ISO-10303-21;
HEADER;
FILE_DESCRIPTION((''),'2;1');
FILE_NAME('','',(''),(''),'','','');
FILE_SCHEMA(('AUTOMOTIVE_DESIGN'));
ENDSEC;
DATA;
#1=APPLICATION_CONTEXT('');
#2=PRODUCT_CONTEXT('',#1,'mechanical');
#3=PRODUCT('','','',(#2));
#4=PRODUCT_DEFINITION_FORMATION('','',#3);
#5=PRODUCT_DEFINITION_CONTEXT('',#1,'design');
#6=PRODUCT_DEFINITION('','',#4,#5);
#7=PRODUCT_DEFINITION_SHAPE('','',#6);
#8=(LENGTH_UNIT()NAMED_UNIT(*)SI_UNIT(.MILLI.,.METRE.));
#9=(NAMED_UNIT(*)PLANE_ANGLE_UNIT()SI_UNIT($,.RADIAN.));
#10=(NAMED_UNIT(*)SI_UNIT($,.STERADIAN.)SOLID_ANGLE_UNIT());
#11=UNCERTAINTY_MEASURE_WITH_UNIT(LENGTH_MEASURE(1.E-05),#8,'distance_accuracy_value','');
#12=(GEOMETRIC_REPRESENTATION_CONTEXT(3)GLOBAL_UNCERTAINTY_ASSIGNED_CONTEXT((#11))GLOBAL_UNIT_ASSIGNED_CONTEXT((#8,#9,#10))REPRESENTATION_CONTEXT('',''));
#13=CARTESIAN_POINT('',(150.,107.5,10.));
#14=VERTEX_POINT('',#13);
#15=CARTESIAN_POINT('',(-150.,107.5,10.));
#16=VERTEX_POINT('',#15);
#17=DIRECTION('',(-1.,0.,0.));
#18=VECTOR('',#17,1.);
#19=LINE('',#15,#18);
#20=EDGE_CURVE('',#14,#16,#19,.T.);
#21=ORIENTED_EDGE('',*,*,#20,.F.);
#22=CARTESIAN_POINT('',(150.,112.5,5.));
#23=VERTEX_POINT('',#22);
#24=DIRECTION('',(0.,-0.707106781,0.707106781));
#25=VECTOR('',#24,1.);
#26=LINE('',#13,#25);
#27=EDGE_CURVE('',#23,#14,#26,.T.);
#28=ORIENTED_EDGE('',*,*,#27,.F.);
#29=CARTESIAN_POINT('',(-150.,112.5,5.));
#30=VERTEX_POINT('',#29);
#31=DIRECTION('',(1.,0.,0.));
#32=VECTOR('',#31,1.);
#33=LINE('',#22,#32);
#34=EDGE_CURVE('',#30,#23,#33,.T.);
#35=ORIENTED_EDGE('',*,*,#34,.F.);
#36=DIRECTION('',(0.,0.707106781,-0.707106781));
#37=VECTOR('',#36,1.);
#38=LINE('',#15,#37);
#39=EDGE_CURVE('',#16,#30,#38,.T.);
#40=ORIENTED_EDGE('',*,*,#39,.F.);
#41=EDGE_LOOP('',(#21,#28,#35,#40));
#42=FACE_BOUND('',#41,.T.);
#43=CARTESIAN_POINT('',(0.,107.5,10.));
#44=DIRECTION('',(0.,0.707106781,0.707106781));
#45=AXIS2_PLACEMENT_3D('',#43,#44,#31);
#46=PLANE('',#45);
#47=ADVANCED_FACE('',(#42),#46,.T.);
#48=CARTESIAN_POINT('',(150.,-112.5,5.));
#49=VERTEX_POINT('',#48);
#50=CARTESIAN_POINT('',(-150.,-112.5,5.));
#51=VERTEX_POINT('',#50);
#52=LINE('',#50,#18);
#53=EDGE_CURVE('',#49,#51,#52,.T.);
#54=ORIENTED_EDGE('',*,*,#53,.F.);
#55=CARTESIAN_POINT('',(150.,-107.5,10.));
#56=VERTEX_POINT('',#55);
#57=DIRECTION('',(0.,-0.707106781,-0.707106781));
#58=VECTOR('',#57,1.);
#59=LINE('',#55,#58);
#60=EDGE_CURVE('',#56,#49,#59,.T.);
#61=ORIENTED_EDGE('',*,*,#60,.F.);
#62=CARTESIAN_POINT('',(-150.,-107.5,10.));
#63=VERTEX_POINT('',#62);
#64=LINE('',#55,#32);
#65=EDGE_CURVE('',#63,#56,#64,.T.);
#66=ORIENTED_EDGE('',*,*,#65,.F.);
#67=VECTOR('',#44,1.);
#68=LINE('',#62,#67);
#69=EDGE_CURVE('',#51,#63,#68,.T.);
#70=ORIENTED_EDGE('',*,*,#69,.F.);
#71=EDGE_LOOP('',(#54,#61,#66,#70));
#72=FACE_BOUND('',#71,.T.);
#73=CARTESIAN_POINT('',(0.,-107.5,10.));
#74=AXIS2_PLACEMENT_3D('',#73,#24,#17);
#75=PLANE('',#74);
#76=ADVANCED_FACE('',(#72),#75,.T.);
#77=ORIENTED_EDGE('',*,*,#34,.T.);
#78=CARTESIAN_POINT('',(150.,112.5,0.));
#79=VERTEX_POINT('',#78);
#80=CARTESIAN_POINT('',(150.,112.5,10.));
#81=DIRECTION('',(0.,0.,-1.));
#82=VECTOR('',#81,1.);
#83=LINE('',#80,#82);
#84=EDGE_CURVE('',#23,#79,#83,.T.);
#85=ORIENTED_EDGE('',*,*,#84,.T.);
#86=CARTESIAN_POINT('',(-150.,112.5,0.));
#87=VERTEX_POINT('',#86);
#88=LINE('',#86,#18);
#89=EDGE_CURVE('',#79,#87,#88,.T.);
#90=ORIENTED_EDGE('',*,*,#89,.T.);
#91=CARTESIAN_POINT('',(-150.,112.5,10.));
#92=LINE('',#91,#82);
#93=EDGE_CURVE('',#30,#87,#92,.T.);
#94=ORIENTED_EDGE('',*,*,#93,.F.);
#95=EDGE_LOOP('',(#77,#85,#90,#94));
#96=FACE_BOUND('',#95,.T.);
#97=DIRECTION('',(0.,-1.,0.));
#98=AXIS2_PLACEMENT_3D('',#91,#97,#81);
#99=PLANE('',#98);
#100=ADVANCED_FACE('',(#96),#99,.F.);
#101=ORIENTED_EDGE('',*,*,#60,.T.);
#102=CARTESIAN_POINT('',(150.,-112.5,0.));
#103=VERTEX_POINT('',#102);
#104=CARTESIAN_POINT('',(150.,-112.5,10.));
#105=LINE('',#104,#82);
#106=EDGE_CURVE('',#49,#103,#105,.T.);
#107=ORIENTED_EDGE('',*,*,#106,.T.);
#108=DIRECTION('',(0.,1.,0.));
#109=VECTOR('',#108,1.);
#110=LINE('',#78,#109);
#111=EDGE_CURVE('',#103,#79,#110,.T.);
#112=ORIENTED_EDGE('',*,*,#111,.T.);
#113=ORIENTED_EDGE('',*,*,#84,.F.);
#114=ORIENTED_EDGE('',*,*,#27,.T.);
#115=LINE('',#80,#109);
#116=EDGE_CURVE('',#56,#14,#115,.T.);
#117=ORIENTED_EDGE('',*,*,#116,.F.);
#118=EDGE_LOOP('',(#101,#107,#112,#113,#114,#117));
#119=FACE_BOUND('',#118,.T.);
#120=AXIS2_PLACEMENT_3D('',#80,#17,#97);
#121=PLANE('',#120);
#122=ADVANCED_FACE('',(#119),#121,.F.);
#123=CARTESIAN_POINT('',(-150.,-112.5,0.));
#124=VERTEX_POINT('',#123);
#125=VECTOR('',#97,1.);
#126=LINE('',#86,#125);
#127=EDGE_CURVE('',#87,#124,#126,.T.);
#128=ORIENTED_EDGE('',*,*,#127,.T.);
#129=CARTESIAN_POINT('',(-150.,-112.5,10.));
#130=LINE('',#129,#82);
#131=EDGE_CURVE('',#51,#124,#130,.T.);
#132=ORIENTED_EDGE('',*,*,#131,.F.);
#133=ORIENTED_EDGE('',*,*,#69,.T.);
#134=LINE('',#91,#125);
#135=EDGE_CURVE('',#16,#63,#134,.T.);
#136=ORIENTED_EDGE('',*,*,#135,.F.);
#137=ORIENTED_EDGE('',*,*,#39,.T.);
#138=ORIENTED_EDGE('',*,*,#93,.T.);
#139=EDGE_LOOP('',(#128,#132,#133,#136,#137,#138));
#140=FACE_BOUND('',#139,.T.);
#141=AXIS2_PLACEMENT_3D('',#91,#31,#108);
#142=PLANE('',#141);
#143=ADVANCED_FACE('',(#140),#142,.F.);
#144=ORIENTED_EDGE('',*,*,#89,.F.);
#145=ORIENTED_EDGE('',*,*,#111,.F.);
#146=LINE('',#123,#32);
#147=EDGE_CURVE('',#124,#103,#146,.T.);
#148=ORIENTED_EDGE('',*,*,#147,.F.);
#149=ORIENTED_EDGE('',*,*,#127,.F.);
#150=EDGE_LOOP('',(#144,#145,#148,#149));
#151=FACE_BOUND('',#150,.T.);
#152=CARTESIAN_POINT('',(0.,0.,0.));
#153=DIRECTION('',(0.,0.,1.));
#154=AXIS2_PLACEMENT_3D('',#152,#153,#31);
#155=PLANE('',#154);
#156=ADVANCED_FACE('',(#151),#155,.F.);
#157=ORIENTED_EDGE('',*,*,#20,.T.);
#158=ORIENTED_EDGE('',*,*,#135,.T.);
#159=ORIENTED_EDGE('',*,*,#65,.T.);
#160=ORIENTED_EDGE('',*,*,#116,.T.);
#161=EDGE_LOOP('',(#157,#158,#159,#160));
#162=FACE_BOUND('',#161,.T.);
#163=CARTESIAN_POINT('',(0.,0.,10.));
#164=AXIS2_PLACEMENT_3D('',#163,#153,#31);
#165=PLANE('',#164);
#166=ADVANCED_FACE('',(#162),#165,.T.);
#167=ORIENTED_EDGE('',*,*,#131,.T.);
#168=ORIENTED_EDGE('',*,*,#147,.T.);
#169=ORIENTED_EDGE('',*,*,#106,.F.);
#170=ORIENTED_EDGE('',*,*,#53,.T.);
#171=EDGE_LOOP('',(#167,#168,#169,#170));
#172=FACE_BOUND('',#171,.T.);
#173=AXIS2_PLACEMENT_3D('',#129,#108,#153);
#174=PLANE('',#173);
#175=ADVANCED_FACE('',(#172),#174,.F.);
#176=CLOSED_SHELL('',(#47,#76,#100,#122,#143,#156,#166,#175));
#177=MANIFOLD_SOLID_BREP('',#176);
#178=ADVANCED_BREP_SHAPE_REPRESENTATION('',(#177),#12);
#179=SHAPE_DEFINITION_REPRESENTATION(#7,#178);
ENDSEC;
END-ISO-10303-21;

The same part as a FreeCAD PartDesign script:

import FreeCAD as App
import Part
import Sketcher


def edges_at(feature, points):
    """Names of the edges that pass closest to the given points."""
    edges = feature.Shape.Edges
    near = lambda p: min(range(len(edges)), key=lambda i: edges[i].distToShape(Part.Vertex(*p))[0])
    return sorted({f"Edge{near(p) + 1}" for p in points})


def add_polygon(sketch, points):
    """Adds a closed chain of lines whose ends are joined by coincident constraints."""
    first, n = sketch.GeometryCount, len(points)
    for a, b in zip(points, points[1:] + points[:1]):
        sketch.addGeometry(Part.LineSegment(App.Vector(*a, 0), App.Vector(*b, 0)), False)
    for i in range(n):
        sketch.addConstraint(Sketcher.Constraint("Coincident", first + i, 2, first + (i + 1) % n, 1))

doc = App.newDocument("Part")
body = doc.addObject("PartDesign::Body", "Body")

sketch1 = doc.addObject("Sketcher::SketchObject", "Sketch")
body.addObject(sketch1)
sketch1.AttachmentSupport = (doc.XY_Plane, [""])
sketch1.MapMode = "FlatFace"
add_polygon(sketch1, [(-150, 112), (-150, -112), (150, -112), (150, 112)])
sketch1.addConstraint(Sketcher.Constraint("Vertical", 0))
sketch1.addConstraint(Sketcher.Constraint("Horizontal", 1))
sketch1.addConstraint(Sketcher.Constraint("Vertical", 2))
sketch1.addConstraint(Sketcher.Constraint("Horizontal", 3))
sketch1.addConstraint(Sketcher.Constraint("Symmetric", 0, 2, 2, 2, -1, 1))
sketch1.addConstraint(Sketcher.Constraint("DistanceX", 1, 1, 1, 2, 300.0))
sketch1.addConstraint(Sketcher.Constraint("DistanceY", 0, 2, 0, 1, 225.0))
pad1 = doc.addObject("PartDesign::Pad", "Pad")
body.addObject(pad1)
pad1.Profile = sketch1
pad1.Length = 10
doc.recompute()

chamfer = doc.addObject("PartDesign::Chamfer", "Chamfer")
body.addObject(chamfer)
chamfer.Base = (pad1, edges_at(pad1, [(0, -112.5, 10), (0, 112.5, 10)]))
chamfer.Size = 5

doc.recompute()
